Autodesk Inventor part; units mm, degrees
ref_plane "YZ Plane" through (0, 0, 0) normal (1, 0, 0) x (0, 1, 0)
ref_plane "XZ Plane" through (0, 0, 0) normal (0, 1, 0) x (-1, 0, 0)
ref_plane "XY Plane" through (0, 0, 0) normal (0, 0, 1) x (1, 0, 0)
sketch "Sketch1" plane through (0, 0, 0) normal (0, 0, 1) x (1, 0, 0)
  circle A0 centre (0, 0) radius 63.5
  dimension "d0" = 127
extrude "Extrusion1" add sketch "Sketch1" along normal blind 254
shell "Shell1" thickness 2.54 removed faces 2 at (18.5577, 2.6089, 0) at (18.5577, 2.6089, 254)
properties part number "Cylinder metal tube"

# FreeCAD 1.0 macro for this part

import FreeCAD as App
import Part
import Sketcher

V = App.Vector
Q = App.Units.Quantity


def faces_at(feature, points):
    """Names of the faces that lie closest to the given points."""
    faces = feature.Shape.Faces
    near = lambda p: min(range(len(faces)), key=lambda i: faces[i].distToShape(Part.Vertex(*p))[0])
    return sorted({f"Face{near(p) + 1}" for p in points})

doc = App.newDocument("Part")
body = doc.addObject("PartDesign::Body", "Body")

# Sketch on XY plane
sketch1 = doc.addObject("Sketcher::SketchObject", "Sketch")
body.addObject(sketch1)
sketch1.AttachmentSupport = (doc.XY_Plane, [""])
sketch1.MapMode = "FlatFace"
sketch1.addGeometry(Part.Circle(V(0, 0, 0), V(0, 0, 1), 63.5), False)
sketch1.addConstraint(Sketcher.Constraint("Coincident", 0, 3, -1, 1))
sketch1.addConstraint(Sketcher.Constraint("Diameter", 0, Q("5 in")))
pad1 = doc.addObject("PartDesign::Pad", "Pad")
body.addObject(pad1)
pad1.Profile = sketch1
pad1.Length = Q("10 in")
doc.recompute()

thickness = doc.addObject("PartDesign::Thickness", "Thickness")
body.addObject(thickness)
thickness.Base = (pad1, faces_at(pad1, [(18.558, 2.609, 0), (18.558, 2.609, 254)]))
thickness.Value = Q("0.1 in")
thickness.Reversed = True
thickness.Join = "Intersection"

doc.recompute()
